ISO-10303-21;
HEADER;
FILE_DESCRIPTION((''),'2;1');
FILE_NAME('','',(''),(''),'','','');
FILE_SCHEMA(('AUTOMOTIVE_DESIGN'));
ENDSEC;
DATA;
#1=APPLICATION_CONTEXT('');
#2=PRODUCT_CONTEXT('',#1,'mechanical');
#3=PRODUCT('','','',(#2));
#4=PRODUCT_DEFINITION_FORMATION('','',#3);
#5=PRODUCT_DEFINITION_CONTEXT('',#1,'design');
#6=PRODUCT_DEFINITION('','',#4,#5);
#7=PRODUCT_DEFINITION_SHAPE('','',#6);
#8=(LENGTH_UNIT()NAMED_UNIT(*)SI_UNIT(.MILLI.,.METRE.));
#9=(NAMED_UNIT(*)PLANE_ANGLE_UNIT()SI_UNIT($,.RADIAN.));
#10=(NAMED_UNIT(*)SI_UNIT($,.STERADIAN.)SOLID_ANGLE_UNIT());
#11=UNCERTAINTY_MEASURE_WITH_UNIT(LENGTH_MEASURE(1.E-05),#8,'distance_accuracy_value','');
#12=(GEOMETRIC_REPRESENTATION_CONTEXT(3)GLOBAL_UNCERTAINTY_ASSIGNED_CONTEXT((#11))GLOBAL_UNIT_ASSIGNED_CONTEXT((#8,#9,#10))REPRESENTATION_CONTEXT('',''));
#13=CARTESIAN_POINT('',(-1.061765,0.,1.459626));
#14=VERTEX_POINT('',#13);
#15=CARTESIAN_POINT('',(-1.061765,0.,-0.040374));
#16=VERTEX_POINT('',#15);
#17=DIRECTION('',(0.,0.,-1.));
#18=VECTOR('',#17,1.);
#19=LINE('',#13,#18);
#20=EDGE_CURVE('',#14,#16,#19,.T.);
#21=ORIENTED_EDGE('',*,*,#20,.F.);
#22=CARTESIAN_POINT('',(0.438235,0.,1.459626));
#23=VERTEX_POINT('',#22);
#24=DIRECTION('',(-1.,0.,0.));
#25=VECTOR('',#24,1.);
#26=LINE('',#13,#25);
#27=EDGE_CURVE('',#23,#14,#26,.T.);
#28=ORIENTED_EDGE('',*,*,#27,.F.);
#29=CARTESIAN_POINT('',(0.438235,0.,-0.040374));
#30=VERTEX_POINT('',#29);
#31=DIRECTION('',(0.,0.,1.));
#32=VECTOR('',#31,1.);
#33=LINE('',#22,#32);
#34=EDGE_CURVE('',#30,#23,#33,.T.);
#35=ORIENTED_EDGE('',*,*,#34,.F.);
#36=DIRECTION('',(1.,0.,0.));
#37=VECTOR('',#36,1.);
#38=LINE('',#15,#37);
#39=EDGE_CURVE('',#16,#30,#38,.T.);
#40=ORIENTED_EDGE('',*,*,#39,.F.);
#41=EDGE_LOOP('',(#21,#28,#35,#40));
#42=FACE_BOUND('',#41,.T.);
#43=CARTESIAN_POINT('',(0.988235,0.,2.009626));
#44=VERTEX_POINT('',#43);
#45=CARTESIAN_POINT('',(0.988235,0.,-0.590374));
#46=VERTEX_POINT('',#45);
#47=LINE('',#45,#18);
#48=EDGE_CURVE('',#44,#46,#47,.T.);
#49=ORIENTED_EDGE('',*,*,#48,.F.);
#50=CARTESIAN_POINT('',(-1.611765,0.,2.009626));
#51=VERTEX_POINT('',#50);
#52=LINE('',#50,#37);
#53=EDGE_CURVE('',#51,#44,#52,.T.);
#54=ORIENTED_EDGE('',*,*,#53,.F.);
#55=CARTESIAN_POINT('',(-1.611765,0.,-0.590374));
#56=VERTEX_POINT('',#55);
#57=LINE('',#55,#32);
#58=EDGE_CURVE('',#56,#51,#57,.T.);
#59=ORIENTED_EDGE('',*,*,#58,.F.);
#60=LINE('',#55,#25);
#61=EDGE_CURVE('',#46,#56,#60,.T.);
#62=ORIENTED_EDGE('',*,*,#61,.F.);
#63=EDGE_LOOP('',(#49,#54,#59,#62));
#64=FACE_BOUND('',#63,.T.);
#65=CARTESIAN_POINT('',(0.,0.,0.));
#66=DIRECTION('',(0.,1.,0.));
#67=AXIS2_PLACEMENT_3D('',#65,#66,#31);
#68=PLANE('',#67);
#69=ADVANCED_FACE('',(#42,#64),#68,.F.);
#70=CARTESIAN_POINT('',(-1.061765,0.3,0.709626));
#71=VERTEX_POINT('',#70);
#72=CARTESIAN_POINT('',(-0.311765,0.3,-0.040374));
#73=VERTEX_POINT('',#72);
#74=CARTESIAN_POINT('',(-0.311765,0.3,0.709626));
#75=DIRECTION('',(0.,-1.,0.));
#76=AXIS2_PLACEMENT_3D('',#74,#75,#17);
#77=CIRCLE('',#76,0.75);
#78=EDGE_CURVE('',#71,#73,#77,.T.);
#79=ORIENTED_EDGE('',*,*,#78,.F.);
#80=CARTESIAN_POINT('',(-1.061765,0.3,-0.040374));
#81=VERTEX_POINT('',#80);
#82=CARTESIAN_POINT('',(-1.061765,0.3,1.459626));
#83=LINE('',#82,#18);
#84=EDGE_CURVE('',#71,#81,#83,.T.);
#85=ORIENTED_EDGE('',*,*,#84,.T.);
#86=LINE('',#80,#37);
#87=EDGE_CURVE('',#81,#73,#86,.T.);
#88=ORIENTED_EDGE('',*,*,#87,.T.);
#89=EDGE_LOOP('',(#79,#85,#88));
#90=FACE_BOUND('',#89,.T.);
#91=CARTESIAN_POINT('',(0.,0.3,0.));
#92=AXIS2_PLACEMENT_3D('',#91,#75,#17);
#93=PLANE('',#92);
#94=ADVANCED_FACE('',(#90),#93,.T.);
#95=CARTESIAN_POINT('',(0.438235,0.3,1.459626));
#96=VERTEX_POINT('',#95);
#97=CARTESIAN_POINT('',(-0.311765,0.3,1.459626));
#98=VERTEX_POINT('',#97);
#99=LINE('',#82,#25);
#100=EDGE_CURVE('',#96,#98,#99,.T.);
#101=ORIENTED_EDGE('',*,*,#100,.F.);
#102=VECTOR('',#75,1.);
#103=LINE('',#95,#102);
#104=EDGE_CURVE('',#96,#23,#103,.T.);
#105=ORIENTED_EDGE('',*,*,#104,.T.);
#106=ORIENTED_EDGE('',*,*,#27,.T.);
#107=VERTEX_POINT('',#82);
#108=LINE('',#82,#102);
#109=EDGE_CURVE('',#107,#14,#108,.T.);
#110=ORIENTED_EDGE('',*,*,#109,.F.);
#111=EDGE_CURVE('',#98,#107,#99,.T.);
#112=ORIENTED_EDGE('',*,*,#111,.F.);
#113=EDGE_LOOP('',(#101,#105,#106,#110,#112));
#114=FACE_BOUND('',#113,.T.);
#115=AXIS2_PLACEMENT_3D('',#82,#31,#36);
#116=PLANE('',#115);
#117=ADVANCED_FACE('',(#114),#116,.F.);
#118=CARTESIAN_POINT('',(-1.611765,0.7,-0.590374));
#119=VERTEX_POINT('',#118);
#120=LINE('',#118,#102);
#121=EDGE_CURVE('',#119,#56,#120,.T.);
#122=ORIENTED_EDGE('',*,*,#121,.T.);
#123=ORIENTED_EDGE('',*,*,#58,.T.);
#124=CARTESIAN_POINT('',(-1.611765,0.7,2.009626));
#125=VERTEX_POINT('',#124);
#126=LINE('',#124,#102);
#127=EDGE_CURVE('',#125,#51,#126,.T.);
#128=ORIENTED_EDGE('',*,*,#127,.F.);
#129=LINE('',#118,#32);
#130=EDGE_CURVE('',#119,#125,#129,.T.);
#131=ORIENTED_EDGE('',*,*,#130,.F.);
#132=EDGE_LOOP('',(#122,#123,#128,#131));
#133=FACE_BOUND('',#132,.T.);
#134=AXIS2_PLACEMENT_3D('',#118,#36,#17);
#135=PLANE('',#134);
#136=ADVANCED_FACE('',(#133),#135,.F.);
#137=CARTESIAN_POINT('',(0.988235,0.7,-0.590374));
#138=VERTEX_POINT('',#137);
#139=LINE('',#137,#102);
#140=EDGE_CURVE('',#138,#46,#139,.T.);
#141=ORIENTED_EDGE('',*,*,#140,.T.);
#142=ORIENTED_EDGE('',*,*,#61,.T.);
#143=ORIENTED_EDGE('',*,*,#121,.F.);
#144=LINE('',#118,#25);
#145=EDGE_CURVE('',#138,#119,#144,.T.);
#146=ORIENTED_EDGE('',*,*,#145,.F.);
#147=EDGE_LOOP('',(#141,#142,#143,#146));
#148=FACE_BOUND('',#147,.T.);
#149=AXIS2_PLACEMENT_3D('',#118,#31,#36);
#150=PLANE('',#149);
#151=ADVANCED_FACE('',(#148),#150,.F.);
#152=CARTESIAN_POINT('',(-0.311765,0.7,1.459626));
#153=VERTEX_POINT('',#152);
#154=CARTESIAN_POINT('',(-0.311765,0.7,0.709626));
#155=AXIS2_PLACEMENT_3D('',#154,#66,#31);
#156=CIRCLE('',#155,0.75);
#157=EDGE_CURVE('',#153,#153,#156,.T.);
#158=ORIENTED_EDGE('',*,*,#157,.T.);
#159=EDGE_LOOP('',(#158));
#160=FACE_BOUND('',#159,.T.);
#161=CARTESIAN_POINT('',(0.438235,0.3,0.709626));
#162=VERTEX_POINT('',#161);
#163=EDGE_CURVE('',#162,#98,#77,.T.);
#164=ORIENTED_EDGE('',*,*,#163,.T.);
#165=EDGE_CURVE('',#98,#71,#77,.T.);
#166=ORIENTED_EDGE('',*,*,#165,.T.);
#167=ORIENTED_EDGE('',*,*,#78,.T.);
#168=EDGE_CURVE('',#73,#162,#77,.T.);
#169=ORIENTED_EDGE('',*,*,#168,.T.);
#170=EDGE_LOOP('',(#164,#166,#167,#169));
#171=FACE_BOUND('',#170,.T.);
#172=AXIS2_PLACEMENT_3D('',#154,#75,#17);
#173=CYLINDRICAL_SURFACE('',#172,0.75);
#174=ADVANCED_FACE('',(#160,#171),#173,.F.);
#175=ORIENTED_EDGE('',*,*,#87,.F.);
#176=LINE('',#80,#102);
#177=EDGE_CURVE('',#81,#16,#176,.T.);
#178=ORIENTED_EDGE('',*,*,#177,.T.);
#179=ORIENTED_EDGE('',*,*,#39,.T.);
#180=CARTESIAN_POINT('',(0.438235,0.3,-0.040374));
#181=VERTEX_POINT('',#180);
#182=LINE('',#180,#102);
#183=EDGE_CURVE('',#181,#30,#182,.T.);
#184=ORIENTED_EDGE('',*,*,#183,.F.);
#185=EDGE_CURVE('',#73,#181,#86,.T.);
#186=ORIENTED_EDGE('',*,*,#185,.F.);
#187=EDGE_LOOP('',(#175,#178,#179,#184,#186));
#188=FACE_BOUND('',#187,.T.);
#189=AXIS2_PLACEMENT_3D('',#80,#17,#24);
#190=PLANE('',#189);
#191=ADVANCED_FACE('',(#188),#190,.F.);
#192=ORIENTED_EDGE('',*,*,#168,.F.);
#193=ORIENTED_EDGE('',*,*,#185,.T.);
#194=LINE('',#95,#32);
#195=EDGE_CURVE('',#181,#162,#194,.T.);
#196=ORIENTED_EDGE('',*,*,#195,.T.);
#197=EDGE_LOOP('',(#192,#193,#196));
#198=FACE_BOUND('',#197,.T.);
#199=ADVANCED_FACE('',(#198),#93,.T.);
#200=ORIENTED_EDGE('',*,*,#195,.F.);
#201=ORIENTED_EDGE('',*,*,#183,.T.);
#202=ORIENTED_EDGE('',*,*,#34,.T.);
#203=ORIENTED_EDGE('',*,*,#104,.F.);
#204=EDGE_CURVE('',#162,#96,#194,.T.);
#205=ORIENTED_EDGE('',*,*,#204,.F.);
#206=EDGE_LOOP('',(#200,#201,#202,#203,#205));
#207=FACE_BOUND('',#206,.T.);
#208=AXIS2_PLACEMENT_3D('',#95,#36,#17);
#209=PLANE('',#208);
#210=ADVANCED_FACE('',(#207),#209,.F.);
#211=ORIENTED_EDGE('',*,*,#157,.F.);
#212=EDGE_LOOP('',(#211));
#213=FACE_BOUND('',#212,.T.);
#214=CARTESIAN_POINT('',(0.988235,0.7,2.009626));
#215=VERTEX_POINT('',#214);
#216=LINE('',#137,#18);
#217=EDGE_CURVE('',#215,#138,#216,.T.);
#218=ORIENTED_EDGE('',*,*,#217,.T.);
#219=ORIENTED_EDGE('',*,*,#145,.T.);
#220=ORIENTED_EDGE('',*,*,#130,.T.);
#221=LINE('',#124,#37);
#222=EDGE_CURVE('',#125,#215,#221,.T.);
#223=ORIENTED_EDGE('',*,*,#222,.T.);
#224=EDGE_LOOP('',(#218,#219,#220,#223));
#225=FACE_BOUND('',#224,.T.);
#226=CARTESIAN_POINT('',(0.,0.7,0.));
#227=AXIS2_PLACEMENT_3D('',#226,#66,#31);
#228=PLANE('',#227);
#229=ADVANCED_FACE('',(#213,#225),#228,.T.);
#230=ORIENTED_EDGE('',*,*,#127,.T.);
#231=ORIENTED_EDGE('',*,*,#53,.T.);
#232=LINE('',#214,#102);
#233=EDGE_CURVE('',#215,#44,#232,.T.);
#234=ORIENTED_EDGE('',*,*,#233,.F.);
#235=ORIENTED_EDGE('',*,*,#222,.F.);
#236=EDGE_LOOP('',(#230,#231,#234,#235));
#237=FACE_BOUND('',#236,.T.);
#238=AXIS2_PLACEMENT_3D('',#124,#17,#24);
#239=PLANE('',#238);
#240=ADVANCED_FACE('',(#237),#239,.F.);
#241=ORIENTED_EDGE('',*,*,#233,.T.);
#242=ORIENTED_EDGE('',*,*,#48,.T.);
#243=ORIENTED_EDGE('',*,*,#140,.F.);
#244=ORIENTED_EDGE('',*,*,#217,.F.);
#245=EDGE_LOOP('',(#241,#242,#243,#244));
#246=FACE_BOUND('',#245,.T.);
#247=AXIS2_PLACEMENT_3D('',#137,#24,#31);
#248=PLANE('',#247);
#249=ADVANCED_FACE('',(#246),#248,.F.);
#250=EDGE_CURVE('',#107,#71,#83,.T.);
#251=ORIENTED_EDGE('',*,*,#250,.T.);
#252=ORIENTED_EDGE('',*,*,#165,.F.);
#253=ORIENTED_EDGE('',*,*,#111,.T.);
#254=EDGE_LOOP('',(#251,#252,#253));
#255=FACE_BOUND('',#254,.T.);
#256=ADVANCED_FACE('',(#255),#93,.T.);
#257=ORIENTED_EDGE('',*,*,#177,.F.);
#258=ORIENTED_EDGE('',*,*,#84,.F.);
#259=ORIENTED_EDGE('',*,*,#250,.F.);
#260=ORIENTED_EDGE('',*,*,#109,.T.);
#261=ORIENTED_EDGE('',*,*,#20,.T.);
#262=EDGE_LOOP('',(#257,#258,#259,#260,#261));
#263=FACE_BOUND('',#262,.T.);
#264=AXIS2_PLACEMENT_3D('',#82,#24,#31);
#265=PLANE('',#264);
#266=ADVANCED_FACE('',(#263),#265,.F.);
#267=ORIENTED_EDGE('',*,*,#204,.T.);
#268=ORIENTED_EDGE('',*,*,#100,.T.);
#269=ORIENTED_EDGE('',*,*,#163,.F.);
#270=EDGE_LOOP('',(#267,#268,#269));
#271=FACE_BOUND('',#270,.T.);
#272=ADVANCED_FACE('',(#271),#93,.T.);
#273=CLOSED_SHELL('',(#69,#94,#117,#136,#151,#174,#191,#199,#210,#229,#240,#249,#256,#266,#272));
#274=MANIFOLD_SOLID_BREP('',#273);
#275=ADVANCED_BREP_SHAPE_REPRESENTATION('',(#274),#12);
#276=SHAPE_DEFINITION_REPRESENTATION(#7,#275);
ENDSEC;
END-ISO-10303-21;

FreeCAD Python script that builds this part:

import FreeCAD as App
import Part
import Sketcher
Q = App.Units.Quantity

doc = App.newDocument("Part")
body = doc.addObject("PartDesign::Body", "Body")

sketch1 = body.newObject("Sketcher::SketchObject", "Sketch")
sketch1.AttachmentSupport = (doc.getObject("XZ_Plane"), [""])
sketch1.MapMode = "FlatFace"
sketch1.addGeometry(Part.LineSegment(App.Vector(-1.6, -0.6, 0), App.Vector(-1.6, 2, 0)), False)
sketch1.addGeometry(Part.LineSegment(App.Vector(-1.6, 2, 0), App.Vector(1, 2, 0)), False)
sketch1.addGeometry(Part.LineSegment(App.Vector(1, 2, 0), App.Vector(1, -0.6, 0)), False)
sketch1.addGeometry(Part.LineSegment(App.Vector(1, -0.6, 0), App.Vector(-1.6, -0.6, 0)), False)
sketch1.addGeometry(Part.Circle(App.Vector(-0.3, 0.7, 0), App.Vector(0, 0, 1), 0.8), False)
sketch1.addConstraint(Sketcher.Constraint("Coincident", 0, 2, 1, 1))
sketch1.addConstraint(Sketcher.Constraint("Coincident", 1, 2, 2, 1))
sketch1.addConstraint(Sketcher.Constraint("Coincident", 2, 2, 3, 1))
sketch1.addConstraint(Sketcher.Constraint("Coincident", 3, 2, 0, 1))
sketch1.addConstraint(Sketcher.Constraint("Vertical", 0))
sketch1.addConstraint(Sketcher.Constraint("Horizontal", 1))
sketch1.addConstraint(Sketcher.Constraint("Vertical", 2))
sketch1.addConstraint(Sketcher.Constraint("Horizontal", 3))
sketch1.addConstraint(Sketcher.Constraint("Equal", 3, 0))
sketch1.addConstraint(Sketcher.Constraint("Diameter", 4, Q("1.5 mm")))
sketch1.addConstraint(Sketcher.Constraint("DistanceX", 1, 1, 1, 2, Q("2.6 mm")))
sketch1.addConstraint(Sketcher.Constraint("DistanceX", 0, 2, 4, 3, Q("1.3 mm")))
sketch1.addConstraint(Sketcher.Constraint("DistanceY", 4, 3, 0, 2, Q("1.3 mm")))
sketch1.addConstraint(Sketcher.Constraint("DistanceX", 4, 3, -1, 1, Q("0.311765 mm")))
sketch1.addConstraint(Sketcher.Constraint("DistanceY", -1, 1, 4, 3, Q("0.709626 mm")))
pad1 = body.newObject("PartDesign::Pad", "Pad")
pad1.Profile = sketch1
pad1.Length = 0.7
pad1.Reversed = True

sketch2 = body.newObject("Sketcher::SketchObject", "Sketch001")
sketch2.AttachmentSupport = (doc.getObject("XZ_Plane"), [""])
sketch2.MapMode = "FlatFace"
sketch2.addGeometry(Part.LineSegment(App.Vector(-1.1, 1.5, 0), App.Vector(-1.1, 0, 0)), False)
sketch2.addGeometry(Part.LineSegment(App.Vector(-1.1, 0, 0), App.Vector(0.4, 0, 0)), False)
sketch2.addGeometry(Part.LineSegment(App.Vector(0.4, 0, 0), App.Vector(0.4, 1.5, 0)), False)
sketch2.addGeometry(Part.LineSegment(App.Vector(0.4, 1.5, 0), App.Vector(-1.1, 1.5, 0)), False)
sketch2.addConstraint(Sketcher.Constraint("Coincident", 0, 2, 1, 1))
sketch2.addConstraint(Sketcher.Constraint("Coincident", 1, 2, 2, 1))
sketch2.addConstraint(Sketcher.Constraint("Coincident", 2, 2, 3, 1))
sketch2.addConstraint(Sketcher.Constraint("Coincident", 3, 2, 0, 1))
sketch2.addConstraint(Sketcher.Constraint("Vertical", 0))
sketch2.addConstraint(Sketcher.Constraint("Horizontal", 1))
sketch2.addConstraint(Sketcher.Constraint("Vertical", 2))
sketch2.addConstraint(Sketcher.Constraint("Horizontal", 3))
sketch2.addConstraint(Sketcher.Constraint("Equal", 3, 0))
sketch2.addConstraint(Sketcher.Constraint("DistanceX", 1, 1, 1, 2, Q("1.5 mm")))
sketch2.addConstraint(Sketcher.Constraint("DistanceX", 0, 2, -1, 1, Q("1.061765 mm")))
sketch2.addConstraint(Sketcher.Constraint("DistanceY", 0, 2, -1, 1, Q("0.040374 mm")))
pocket1 = body.newObject("PartDesign::Pocket", "Pocket")
pocket1.Profile = sketch2
pocket1.Length = 0.3

doc.recompute()
